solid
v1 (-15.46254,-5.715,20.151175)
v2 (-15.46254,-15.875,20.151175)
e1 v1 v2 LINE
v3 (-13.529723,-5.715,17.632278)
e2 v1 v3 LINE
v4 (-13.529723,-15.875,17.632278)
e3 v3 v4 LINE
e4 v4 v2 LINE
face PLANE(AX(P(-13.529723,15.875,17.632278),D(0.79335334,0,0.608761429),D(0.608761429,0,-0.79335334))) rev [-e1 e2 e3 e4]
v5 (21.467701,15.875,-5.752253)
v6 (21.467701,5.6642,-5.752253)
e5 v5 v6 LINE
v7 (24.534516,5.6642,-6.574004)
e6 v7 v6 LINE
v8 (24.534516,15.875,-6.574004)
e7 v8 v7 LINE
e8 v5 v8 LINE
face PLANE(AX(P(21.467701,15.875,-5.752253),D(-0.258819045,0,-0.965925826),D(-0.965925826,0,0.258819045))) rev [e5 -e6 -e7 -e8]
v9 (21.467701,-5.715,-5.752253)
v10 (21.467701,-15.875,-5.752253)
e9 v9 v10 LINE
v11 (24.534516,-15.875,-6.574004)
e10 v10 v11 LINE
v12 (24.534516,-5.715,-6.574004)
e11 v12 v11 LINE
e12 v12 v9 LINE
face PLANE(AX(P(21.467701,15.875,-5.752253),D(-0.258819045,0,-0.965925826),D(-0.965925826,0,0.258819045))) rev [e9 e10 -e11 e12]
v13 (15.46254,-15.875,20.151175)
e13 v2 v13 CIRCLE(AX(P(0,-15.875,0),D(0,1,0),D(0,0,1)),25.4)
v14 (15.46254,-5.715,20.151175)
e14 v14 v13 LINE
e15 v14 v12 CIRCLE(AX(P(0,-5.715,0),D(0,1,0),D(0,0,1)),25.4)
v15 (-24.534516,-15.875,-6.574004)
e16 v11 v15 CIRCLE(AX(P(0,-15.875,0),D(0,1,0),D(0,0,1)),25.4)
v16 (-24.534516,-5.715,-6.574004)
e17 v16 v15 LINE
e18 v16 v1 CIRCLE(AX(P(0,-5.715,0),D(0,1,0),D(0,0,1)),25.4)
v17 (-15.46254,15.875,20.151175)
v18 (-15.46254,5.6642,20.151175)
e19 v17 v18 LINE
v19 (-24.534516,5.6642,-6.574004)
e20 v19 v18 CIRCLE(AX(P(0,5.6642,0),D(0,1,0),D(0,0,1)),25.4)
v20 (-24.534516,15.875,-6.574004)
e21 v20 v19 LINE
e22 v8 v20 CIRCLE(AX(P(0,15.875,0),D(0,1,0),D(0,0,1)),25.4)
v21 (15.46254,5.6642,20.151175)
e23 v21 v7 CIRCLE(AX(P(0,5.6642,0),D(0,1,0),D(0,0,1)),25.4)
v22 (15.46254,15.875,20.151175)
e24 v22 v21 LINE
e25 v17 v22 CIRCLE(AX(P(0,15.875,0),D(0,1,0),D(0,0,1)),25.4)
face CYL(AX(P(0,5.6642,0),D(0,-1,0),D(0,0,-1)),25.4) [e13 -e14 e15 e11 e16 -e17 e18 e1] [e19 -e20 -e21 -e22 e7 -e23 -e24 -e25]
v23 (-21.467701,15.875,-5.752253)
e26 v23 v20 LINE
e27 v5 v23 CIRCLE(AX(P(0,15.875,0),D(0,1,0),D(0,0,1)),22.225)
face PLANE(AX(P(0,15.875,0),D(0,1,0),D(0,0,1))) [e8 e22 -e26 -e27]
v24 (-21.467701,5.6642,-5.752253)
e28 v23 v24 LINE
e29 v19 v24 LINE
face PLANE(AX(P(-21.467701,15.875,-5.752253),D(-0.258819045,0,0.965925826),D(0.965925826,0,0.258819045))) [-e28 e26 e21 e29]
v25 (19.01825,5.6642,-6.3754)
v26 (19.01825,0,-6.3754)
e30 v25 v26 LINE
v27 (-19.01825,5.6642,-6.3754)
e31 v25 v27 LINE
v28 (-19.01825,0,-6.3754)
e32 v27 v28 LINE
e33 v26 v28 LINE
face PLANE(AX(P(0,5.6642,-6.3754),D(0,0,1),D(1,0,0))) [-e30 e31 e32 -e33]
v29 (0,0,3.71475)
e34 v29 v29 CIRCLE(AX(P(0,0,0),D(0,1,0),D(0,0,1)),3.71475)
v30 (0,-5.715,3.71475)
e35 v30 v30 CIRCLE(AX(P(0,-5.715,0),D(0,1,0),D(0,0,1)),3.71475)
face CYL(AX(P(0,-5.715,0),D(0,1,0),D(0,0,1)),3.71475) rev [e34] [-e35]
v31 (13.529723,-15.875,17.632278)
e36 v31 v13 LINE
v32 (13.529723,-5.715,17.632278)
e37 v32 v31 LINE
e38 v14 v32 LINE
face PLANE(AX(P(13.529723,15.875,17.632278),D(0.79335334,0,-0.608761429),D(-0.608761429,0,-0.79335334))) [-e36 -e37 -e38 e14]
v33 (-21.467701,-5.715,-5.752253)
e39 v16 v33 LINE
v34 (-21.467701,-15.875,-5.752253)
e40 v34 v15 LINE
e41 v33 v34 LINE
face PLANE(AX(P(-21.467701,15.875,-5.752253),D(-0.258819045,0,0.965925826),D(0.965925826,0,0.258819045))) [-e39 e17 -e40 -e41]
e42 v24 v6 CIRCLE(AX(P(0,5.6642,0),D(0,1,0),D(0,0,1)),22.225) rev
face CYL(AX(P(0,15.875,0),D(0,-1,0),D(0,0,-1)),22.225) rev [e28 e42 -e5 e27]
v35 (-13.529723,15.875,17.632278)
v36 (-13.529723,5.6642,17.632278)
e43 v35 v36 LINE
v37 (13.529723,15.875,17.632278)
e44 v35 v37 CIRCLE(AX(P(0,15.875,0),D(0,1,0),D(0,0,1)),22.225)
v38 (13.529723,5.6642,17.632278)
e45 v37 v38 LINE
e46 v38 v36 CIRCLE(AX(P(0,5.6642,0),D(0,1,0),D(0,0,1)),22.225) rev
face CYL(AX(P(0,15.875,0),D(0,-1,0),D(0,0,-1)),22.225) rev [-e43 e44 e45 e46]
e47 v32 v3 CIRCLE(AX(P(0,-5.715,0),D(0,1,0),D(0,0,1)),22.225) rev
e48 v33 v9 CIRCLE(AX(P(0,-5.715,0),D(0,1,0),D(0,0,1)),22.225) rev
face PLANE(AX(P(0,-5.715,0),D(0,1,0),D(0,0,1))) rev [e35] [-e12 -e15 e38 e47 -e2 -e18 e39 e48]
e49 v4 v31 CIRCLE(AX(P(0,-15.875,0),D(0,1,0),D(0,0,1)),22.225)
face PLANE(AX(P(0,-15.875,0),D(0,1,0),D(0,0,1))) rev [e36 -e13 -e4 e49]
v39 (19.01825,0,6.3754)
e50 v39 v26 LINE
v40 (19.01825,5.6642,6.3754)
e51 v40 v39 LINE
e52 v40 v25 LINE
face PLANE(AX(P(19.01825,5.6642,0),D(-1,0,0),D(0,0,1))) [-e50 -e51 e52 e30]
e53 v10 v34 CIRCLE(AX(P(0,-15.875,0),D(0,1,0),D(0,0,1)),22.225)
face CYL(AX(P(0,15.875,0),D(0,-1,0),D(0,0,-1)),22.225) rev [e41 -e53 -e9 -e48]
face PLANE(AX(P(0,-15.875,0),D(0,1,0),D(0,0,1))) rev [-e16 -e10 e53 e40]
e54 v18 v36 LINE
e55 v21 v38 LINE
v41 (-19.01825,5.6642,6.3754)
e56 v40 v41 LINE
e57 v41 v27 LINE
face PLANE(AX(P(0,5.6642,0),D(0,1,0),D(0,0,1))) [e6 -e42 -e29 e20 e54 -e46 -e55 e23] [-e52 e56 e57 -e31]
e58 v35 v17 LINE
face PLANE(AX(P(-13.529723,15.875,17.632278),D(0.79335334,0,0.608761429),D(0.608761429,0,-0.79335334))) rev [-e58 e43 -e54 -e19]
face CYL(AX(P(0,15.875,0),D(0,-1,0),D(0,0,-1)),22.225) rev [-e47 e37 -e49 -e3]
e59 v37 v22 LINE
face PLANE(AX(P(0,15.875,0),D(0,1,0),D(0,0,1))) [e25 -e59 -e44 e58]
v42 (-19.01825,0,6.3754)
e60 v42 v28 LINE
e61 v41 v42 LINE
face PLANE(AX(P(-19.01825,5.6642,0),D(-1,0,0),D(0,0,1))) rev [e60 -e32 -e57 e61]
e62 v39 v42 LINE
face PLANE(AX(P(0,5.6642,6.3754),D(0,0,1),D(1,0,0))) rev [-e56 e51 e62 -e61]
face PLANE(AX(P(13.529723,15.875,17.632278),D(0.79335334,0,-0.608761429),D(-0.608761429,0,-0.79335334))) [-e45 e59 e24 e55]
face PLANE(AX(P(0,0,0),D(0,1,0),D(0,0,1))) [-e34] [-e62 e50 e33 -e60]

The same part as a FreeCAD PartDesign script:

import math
import FreeCAD as App
import Part
import Sketcher

V = App.Vector
Q = App.Units.Quantity

doc = App.newDocument("Part")
body = doc.addObject("PartDesign::Body", "Body")

# Sketch on XZ plane
sketch1 = body.newObject("Sketcher::SketchObject", "Sketch")
sketch1.AttachmentSupport = (doc.getObject("XZ_Plane"), [""])
sketch1.MapMode = "FlatFace"
sketch1.addGeometry([
    Part.Circle(V(0, 0, 0), V(0, 0, 1), 25.4),  # 0
    Part.LineSegment(V(19.01825, 6.3754, 0), V(-19.01825, 6.3754, 0)),  # 1
    Part.LineSegment(V(-19.01825, 6.3754, 0), V(-19.01825, -6.3754, 0)),  # 2
    Part.LineSegment(V(-19.01825, -6.3754, 0), V(19.01825, -6.3754, 0)),  # 3
    Part.LineSegment(V(19.01825, -6.3754, 0), V(19.01825, 6.3754, 0)),  # 4
], False)
sketch1.addConstraint([
    Sketcher.Constraint("Coincident", 1, 2, 2, 1),
    Sketcher.Constraint("Coincident", 2, 2, 3, 1),
    Sketcher.Constraint("Coincident", 3, 2, 4, 1),
    Sketcher.Constraint("Coincident", 4, 2, 1, 1),
    Sketcher.Constraint("Horizontal", 1),
    Sketcher.Constraint("Vertical", 2),
    Sketcher.Constraint("Horizontal", 3),
    Sketcher.Constraint("Vertical", 4),
    Sketcher.Constraint("Coincident", 0, 3, -1, 1),
    Sketcher.Constraint("Symmetric", 1, 2, 3, 2, -1, 1),
    Sketcher.Constraint("Diameter", 0, Q("2 in")),
    Sketcher.Constraint("DistanceY", 2, 2, 2, 1, Q("0.502 in")),
    Sketcher.Constraint("DistanceX", 1, 2, 1, 1, Q("1.4975 in")),
])
pad1 = body.newObject("PartDesign::Pad", "Pad")
pad1.Profile = sketch1
pad1.Length = Q("0.223 in")
pad1.Reversed = True

# Sketch on XZ plane
sketch2 = body.newObject("Sketcher::SketchObject", "Sketch001")
sketch2.AttachmentSupport = (doc.getObject("XZ_Plane"), [""])
sketch2.MapMode = "FlatFace"
sketch2.addGeometry([
    Part.Circle(V(0, 0, 0), V(0, 0, 1), 25.4),
    Part.Circle(V(0, 0, 0), V(0, 0, 1), 3.71475),
], False)
sketch2.addConstraint([
    Sketcher.Constraint("Coincident", 0, 3, -1, 1),
    Sketcher.Constraint("Coincident", 1, 3, -1, 1),
    Sketcher.Constraint("Diameter", 0, Q("2 in")),
    Sketcher.Constraint("Diameter", 1, Q("0.2925 in")),
])
pad2 = body.newObject("PartDesign::Pad", "Pad001")
pad2.Profile = sketch2
pad2.Length = Q("0.225 in")

# Sketch on XZ plane
sketch3 = body.newObject("Sketcher::SketchObject", "Sketch002")
sketch3.AttachmentSupport = (doc.getObject("XZ_Plane"), [""])
sketch3.MapMode = "FlatFace"
sketch3.addGeometry([
    Part.LineSegment(V(21.467701, -5.752253, 0), V(24.534516, -6.574004, 0)),  # 0
    Part.ArcOfCircle(Part.Circle(V(0, 0, 0), V(0, 0, 1), 25.4), math.radians(-164.999999), math.radians(-15.000001)),  # 1
    Part.LineSegment(V(-24.534516, -6.574004, 0), V(-21.467701, -5.752253, 0)),  # 2
    Part.ArcOfCircle(Part.Circle(V(0, -0.000001, 0), V(0, 0, 1), 22.224999), math.radians(-165.000002), math.radians(-14.999998)),  # 3
    Part.LineSegment(V(-13.529723, 17.632278, 0), V(-15.46254, 20.151175, 0)),  # 4
    Part.ArcOfCircle(Part.Circle(V(0, 0, 0), V(0, 0, 1), 25.4), math.radians(52.5), math.radians(127.5)),  # 5
    Part.LineSegment(V(15.46254, 20.151175, 0), V(13.529723, 17.632278, 0)),  # 6
    Part.ArcOfCircle(Part.Circle(V(0, -0.000001, 0), V(0, 0, 1), 22.225001), math.radians(52.500001), math.radians(127.499999)),  # 7
], False)
sketch3.addConstraint([
    Sketcher.Constraint("Coincident", 0, 2, 1, 2),
    Sketcher.Constraint("Coincident", 1, 1, 2, 1),
    Sketcher.Constraint("Coincident", 2, 2, 3, 1),
    Sketcher.Constraint("Coincident", 3, 2, 0, 1),
    Sketcher.Constraint("Coincident", 4, 2, 5, 2),
    Sketcher.Constraint("Coincident", 5, 1, 6, 1),
    Sketcher.Constraint("Coincident", 6, 2, 7, 1),
    Sketcher.Constraint("Coincident", 7, 2, 4, 1),
    Sketcher.Constraint("Coincident", 1, 3, -1, 1),
    Sketcher.Constraint("Coincident", 3, 3, -1, 1),
    Sketcher.Constraint("Coincident", 5, 3, -1, 1),
    Sketcher.Constraint("Coincident", 7, 3, -1, 1),
    Sketcher.Constraint("Equal", 1, 5),
    Sketcher.Constraint("Equal", 3, 7),
    Sketcher.Constraint("Horizontal", 0, 2, 1, 1),
    Sketcher.Constraint("Horizontal", 2, 2, 3, 2),
    Sketcher.Constraint("Horizontal", 4, 2, 5, 1),
    Sketcher.Constraint("Horizontal", 6, 2, 7, 2),
    Sketcher.Constraint("Radius", 1, Q("1 in")),
    Sketcher.Constraint("Angle", 0, Q("-15.000007 deg")),
    Sketcher.Constraint("Radius", 3, Q("0.875 in")),
    Sketcher.Constraint("Angle", 4, Q("127.499991 deg")),
    Sketcher.Constraint("DistanceX", 2, 2, -1, 1, 21.467701),
    Sketcher.Constraint("DistanceX", 4, 2, -1, 1, 15.46254),
])
pad3 = body.newObject("PartDesign::Pad", "Pad002")
pad3.Profile = sketch3
pad3.Length = Q("1.25 in")
pad3.Midplane = True

doc.recompute()
